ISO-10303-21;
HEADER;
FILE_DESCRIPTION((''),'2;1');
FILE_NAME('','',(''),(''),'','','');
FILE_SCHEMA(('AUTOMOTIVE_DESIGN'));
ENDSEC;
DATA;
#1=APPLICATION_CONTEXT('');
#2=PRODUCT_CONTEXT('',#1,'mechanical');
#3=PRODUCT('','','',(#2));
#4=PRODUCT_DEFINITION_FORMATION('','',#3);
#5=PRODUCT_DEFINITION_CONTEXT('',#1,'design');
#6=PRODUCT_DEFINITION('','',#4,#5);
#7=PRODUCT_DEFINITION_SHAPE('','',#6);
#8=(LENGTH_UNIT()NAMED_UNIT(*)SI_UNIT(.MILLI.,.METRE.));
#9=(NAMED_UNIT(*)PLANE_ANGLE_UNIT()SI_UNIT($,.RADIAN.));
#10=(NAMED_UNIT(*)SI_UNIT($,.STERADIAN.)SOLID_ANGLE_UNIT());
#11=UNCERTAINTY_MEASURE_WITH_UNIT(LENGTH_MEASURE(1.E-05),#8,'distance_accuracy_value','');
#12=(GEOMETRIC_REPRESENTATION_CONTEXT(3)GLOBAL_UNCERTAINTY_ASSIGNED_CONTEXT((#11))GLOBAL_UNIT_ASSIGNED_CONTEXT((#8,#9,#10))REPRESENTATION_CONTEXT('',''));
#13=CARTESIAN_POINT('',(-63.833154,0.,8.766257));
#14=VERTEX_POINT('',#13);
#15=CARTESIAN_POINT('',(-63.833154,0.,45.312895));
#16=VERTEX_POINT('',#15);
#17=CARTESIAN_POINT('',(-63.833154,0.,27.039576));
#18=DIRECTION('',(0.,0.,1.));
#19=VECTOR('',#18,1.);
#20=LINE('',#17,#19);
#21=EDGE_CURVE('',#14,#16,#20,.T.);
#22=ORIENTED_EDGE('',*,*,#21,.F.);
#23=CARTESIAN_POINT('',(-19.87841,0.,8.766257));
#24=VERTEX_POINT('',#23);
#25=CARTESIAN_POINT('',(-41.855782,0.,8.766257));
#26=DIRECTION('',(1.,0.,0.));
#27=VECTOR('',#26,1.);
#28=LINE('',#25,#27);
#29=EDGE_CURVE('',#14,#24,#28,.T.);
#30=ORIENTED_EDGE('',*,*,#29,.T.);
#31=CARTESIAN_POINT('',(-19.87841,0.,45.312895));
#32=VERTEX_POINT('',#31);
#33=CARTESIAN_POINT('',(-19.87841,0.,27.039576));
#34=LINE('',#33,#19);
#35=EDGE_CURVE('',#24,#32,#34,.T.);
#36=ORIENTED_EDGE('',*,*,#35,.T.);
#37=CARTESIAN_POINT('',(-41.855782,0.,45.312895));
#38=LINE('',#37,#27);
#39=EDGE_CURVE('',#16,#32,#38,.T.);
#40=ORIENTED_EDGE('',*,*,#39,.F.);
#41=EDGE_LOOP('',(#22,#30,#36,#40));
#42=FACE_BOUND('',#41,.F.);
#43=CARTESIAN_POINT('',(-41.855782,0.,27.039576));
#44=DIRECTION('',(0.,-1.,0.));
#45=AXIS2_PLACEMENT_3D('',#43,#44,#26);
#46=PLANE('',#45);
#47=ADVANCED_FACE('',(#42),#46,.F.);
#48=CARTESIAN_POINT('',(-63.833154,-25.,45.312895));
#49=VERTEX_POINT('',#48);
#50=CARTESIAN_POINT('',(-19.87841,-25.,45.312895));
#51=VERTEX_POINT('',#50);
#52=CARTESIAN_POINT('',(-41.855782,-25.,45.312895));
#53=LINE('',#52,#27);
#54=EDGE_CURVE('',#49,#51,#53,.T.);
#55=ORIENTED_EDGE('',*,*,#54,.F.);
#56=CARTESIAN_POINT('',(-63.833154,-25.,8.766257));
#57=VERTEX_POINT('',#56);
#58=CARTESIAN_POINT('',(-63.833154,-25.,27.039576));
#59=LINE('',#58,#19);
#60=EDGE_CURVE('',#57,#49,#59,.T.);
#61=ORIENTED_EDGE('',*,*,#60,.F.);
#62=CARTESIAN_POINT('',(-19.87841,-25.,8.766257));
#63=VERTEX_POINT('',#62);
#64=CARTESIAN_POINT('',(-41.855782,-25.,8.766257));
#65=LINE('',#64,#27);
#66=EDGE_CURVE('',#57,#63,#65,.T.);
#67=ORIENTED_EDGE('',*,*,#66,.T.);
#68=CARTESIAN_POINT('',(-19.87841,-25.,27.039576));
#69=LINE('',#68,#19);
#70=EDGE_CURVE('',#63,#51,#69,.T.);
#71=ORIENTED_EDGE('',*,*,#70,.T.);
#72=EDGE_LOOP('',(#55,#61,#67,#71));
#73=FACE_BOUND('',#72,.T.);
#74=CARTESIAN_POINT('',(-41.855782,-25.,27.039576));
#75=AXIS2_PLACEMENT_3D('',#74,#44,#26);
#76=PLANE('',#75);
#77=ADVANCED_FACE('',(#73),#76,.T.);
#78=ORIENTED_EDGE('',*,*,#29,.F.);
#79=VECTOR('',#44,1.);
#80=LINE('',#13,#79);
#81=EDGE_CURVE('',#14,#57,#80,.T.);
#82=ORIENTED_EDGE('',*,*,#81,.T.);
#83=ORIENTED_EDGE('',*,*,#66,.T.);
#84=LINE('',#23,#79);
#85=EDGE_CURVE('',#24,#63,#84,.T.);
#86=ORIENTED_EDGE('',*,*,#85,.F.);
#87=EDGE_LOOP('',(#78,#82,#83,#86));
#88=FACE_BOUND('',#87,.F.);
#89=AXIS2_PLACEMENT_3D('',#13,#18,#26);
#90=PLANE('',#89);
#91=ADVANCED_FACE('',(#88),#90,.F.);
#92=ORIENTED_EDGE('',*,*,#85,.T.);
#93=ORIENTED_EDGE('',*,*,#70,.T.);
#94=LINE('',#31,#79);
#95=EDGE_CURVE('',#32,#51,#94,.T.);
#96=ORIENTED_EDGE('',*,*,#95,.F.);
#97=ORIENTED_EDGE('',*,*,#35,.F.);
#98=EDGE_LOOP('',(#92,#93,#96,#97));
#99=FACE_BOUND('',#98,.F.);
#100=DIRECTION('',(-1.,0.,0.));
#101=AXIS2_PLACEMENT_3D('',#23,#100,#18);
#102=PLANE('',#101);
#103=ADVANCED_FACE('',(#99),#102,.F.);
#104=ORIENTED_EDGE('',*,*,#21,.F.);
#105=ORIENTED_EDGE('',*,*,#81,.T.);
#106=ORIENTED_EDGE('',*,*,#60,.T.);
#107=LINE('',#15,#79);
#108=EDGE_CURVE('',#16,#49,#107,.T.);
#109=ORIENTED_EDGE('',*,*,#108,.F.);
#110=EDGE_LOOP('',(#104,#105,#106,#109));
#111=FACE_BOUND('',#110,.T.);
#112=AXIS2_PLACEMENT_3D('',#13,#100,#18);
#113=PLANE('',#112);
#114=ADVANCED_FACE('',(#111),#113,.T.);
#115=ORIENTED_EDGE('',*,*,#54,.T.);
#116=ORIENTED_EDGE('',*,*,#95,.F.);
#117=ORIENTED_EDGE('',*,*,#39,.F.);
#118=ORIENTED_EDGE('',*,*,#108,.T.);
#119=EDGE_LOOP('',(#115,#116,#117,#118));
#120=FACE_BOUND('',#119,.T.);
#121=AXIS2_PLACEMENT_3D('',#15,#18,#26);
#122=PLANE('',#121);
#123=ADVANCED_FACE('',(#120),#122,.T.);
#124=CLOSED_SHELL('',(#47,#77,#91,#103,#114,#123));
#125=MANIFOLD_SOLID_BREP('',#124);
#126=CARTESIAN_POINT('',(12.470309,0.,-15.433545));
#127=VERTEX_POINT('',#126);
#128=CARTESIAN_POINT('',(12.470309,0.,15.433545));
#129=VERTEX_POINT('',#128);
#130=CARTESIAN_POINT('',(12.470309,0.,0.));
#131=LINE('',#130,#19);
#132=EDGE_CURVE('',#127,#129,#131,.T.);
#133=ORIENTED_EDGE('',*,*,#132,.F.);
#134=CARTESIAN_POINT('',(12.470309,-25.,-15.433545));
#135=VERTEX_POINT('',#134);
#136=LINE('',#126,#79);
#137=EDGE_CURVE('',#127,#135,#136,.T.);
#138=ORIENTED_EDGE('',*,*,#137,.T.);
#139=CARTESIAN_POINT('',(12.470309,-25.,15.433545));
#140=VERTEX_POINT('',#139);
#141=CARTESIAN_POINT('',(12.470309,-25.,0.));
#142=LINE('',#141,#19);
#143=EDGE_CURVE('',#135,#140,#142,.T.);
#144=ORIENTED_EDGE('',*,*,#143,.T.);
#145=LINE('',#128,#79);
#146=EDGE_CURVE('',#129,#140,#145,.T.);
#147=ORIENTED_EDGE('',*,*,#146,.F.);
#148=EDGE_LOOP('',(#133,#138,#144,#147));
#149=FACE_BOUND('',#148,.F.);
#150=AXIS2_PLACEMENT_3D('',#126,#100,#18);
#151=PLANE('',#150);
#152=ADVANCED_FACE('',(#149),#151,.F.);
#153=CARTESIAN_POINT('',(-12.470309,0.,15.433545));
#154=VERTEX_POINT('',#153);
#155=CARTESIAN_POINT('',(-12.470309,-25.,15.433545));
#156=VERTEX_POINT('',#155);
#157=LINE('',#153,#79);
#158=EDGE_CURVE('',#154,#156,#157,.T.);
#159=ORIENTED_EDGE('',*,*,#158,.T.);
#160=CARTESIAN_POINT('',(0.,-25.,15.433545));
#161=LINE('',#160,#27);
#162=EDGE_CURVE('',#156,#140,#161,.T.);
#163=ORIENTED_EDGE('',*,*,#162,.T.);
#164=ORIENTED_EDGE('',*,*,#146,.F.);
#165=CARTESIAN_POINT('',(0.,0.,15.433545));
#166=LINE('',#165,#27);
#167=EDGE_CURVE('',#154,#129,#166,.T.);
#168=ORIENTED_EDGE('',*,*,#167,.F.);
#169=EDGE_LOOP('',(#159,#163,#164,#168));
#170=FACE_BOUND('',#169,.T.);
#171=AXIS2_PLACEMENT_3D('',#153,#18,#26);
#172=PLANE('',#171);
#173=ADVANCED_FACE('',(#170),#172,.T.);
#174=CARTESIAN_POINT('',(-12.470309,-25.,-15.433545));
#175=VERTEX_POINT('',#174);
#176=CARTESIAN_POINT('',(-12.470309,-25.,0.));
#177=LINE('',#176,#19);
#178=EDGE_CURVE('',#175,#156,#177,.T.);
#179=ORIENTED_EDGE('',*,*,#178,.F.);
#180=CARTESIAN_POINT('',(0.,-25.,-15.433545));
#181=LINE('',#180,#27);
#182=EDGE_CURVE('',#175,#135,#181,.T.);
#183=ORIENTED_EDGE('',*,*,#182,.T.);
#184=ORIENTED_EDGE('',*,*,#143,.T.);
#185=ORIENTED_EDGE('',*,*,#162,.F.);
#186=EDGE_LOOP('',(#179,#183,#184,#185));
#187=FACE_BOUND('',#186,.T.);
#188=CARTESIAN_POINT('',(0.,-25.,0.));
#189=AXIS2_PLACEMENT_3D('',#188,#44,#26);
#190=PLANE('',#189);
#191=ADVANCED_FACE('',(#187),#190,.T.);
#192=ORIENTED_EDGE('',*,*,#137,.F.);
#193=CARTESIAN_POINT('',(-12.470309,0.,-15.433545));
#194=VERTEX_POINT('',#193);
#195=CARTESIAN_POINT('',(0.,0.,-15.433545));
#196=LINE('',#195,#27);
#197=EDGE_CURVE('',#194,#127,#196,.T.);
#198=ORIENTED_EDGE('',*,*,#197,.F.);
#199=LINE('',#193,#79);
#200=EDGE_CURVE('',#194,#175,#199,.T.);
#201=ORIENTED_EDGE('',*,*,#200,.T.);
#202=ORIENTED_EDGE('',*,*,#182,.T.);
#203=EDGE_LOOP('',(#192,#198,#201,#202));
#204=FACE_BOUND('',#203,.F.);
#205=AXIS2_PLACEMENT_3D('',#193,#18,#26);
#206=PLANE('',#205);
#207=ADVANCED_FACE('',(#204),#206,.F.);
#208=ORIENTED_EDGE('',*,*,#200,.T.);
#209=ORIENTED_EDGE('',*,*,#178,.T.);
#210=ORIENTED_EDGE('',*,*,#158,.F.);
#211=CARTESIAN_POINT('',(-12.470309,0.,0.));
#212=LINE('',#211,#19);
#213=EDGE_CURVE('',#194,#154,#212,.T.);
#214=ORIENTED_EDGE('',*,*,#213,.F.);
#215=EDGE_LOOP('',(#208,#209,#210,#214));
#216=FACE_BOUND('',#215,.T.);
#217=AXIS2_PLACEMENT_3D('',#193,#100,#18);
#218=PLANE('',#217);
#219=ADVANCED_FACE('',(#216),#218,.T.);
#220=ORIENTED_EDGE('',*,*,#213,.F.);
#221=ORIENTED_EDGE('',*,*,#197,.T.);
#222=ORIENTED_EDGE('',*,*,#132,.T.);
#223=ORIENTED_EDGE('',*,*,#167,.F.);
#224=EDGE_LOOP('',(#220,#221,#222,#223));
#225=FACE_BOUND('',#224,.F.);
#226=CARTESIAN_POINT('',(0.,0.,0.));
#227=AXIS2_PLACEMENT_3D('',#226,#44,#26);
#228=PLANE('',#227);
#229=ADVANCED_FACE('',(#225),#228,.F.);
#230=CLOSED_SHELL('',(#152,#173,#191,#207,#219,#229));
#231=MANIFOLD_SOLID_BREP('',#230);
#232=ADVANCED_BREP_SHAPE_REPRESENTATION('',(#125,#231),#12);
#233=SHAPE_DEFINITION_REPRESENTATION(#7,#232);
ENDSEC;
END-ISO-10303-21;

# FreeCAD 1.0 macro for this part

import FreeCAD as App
import Part
import Sketcher


def add_polygon(sketch, points):
    """Adds a closed chain of lines whose ends are joined by coincident constraints."""
    first, n = sketch.GeometryCount, len(points)
    for a, b in zip(points, points[1:] + points[:1]):
        sketch.addGeometry(Part.LineSegment(App.Vector(*a, 0), App.Vector(*b, 0)), False)
    for i in range(n):
        sketch.addConstraint(Sketcher.Constraint("Coincident", first + i, 2, first + (i + 1) % n, 1))

doc = App.newDocument("Part")
body = doc.addObject("PartDesign::Body", "Body")
body.AllowCompound = True

sketch1 = doc.addObject("Sketcher::SketchObject", "Sketch")
body.addObject(sketch1)
sketch1.AttachmentSupport = (doc.XZ_Plane, [""])
sketch1.MapMode = "FlatFace"
add_polygon(sketch1, [(-64, 45), (-64, 9), (-20, 9), (-20, 45)])
add_polygon(sketch1, [(-12, 15), (-12, -15), (12, -15), (12, 15)])
sketch1.addConstraint(Sketcher.Constraint("Vertical", 0))
sketch1.addConstraint(Sketcher.Constraint("Horizontal", 1))
sketch1.addConstraint(Sketcher.Constraint("Vertical", 2))
sketch1.addConstraint(Sketcher.Constraint("Horizontal", 3))
sketch1.addConstraint(Sketcher.Constraint("Vertical", 4))
sketch1.addConstraint(Sketcher.Constraint("Horizontal", 5))
sketch1.addConstraint(Sketcher.Constraint("Vertical", 6))
sketch1.addConstraint(Sketcher.Constraint("Horizontal", 7))
sketch1.addConstraint(Sketcher.Constraint("Symmetric", 4, 2, 6, 2, -1, 1))
sketch1.addConstraint(Sketcher.Constraint("DistanceX", 5, 1, 5, 2, 24.940618))
sketch1.addConstraint(Sketcher.Constraint("DistanceY", 0, 2, 0, 1, 36.546638))
sketch1.addConstraint(Sketcher.Constraint("DistanceY", 4, 2, 4, 1, 30.86709))
sketch1.addConstraint(Sketcher.Constraint("DistanceX", 1, 2, 4, 2, 7.4081))
sketch1.addConstraint(Sketcher.Constraint("DistanceY", 4, 2, 1, 2, 24.199802))
sketch1.addConstraint(Sketcher.Constraint("DistanceX", 1, 1, 1, 2, 43.954745))
pad1 = doc.addObject("PartDesign::Pad", "Pad")
body.addObject(pad1)
pad1.Profile = sketch1
pad1.Length = 25

doc.recompute()
